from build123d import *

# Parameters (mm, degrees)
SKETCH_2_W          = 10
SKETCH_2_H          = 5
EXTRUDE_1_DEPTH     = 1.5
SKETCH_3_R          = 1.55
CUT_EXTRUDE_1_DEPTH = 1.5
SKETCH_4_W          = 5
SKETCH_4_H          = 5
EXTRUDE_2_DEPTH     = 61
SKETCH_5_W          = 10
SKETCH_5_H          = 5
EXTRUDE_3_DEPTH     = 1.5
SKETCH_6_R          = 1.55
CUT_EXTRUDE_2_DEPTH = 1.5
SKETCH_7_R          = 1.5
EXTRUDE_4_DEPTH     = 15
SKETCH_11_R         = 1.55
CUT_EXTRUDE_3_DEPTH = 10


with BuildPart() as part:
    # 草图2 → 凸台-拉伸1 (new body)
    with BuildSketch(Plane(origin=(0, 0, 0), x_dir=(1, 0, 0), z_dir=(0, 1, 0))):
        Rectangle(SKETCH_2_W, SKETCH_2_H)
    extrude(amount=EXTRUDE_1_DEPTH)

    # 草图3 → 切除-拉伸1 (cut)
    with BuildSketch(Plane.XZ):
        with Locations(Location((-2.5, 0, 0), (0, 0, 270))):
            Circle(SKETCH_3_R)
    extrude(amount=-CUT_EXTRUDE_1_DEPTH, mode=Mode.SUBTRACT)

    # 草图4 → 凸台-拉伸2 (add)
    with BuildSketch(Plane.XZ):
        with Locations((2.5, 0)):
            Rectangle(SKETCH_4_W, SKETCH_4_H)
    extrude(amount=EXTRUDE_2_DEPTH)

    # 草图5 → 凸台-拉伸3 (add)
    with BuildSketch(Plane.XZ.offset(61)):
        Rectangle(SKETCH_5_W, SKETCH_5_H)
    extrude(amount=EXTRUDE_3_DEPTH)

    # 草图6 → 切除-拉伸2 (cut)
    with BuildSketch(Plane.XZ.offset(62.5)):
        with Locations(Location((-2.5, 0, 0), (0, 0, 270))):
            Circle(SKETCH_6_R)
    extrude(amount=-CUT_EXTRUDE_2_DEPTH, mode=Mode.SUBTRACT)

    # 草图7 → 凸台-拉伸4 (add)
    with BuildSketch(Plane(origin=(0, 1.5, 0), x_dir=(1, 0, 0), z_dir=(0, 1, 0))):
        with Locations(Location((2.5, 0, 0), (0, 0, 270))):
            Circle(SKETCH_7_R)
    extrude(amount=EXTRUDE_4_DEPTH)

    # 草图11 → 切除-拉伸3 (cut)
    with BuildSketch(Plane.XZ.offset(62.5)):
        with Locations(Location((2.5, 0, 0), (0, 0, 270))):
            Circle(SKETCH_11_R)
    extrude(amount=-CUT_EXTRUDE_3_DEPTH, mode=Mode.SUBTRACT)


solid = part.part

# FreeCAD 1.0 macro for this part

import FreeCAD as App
import Part
import Sketcher

V = App.Vector
Q = App.Units.Quantity

doc = App.newDocument("Part")
body = doc.addObject("PartDesign::Body", "Body")

# Sketch on XZ plane
sketch1 = body.newObject("Sketcher::SketchObject", "Sketch")
sketch1.AttachmentSupport = (doc.getObject("XZ_Plane"), [""])
sketch1.MapMode = "FlatFace"
sketch1.addGeometry(Part.LineSegment(V(-5, -2, 0), V(-5, 2, 0)), False)
sketch1.addGeometry(Part.LineSegment(V(-5, 2, 0), V(5, 2, 0)), False)
sketch1.addGeometry(Part.LineSegment(V(5, 2, 0), V(5, -2, 0)), False)
sketch1.addGeometry(Part.LineSegment(V(5, -2, 0), V(-5, -2, 0)), False)
sketch1.addConstraint(Sketcher.Constraint("Coincident", 0, 2, 1, 1))
sketch1.addConstraint(Sketcher.Constraint("Coincident", 1, 2, 2, 1))
sketch1.addConstraint(Sketcher.Constraint("Coincident", 2, 2, 3, 1))
sketch1.addConstraint(Sketcher.Constraint("Coincident", 3, 2, 0, 1))
sketch1.addConstraint(Sketcher.Constraint("Vertical", 0))
sketch1.addConstraint(Sketcher.Constraint("Horizontal", 1))
sketch1.addConstraint(Sketcher.Constraint("Vertical", 2))
sketch1.addConstraint(Sketcher.Constraint("Horizontal", 3))
sketch1.addConstraint(Sketcher.Constraint("Symmetric", 0, 2, 2, 2, -1, 1))
sketch1.addConstraint(Sketcher.Constraint("DistanceX", 1, 1, 1, 2, Q("10 mm")))
sketch1.addConstraint(Sketcher.Constraint("DistanceY", 0, 1, 0, 2, Q("5 mm")))
pad1 = body.newObject("PartDesign::Pad", "Pad")
pad1.Profile = sketch1
pad1.Length = 1.5
pad1.Reversed = True

# Sketch on XZ plane
sketch2 = body.newObject("Sketcher::SketchObject", "Sketch001")
sketch2.AttachmentSupport = (doc.getObject("XZ_Plane"), [""])
sketch2.MapMode = "FlatFace"
sketch2.addGeometry(Part.Circle(V(-2.5, 0, 0), V(0, 0, 1), 1.6), False)
sketch2.addConstraint(Sketcher.Constraint("PointOnObject", 0, 3, -1))
sketch2.addConstraint(Sketcher.Constraint("Diameter", 0, Q("3.1 mm")))
sketch2.addConstraint(Sketcher.Constraint("DistanceX", 0, 3, -1, 1, Q("2.5 mm")))
pocket1 = body.newObject("PartDesign::Pocket", "Pocket")
pocket1.Profile = sketch2
pocket1.Length = 1.5

# Sketch on XZ plane
sketch3 = body.newObject("Sketcher::SketchObject", "Sketch002")
sketch3.AttachmentSupport = (doc.getObject("XZ_Plane"), [""])
sketch3.MapMode = "FlatFace"
sketch3.addGeometry(Part.LineSegment(V(0, 2, 0), V(0, -2, 0)), False)
sketch3.addGeometry(Part.LineSegment(V(0, -2, 0), V(5, -2, 0)), False)
sketch3.addGeometry(Part.LineSegment(V(5, -2, 0), V(5, 2, 0)), False)
sketch3.addGeometry(Part.LineSegment(V(5, 2, 0), V(0, 2, 0)), False)
sketch3.addConstraint(Sketcher.Constraint("Coincident", 0, 2, 1, 1))
sketch3.addConstraint(Sketcher.Constraint("Coincident", 1, 2, 2, 1))
sketch3.addConstraint(Sketcher.Constraint("Coincident", 2, 2, 3, 1))
sketch3.addConstraint(Sketcher.Constraint("Coincident", 3, 2, 0, 1))
sketch3.addConstraint(Sketcher.Constraint("Vertical", 0))
sketch3.addConstraint(Sketcher.Constraint("Horizontal", 1))
sketch3.addConstraint(Sketcher.Constraint("Vertical", 2))
sketch3.addConstraint(Sketcher.Constraint("Horizontal", 3))
sketch3.addConstraint(Sketcher.Constraint("Symmetric", 0, 2, 3, 2, -1, 1))
sketch3.addConstraint(Sketcher.Constraint("Equal", 3, 0))
sketch3.addConstraint(Sketcher.Constraint("DistanceX", 1, 1, 1, 2, Q("5 mm")))
pad2 = body.newObject("PartDesign::Pad", "Pad001")
pad2.Profile = sketch3
pad2.Length = 61

# Sketch on XZ plane
sketch4 = body.newObject("Sketcher::SketchObject", "Sketch003")
sketch4.AttachmentSupport = (doc.getObject("XZ_Plane"), [""])
sketch4.MapMode = "FlatFace"
sketch4.AttachmentOffset = App.Placement(V(0, 0, 61), App.Rotation())
sketch4.addGeometry(Part.LineSegment(V(-5, 2, 0), V(-5, -2, 0)), False)
sketch4.addGeometry(Part.LineSegment(V(-5, -2, 0), V(5, -2, 0)), False)
sketch4.addGeometry(Part.LineSegment(V(5, -2, 0), V(5, 2, 0)), False)
sketch4.addGeometry(Part.LineSegment(V(5, 2, 0), V(-5, 2, 0)), False)
sketch4.addConstraint(Sketcher.Constraint("Coincident", 0, 2, 1, 1))
sketch4.addConstraint(Sketcher.Constraint("Coincident", 1, 2, 2, 1))
sketch4.addConstraint(Sketcher.Constraint("Coincident", 2, 2, 3, 1))
sketch4.addConstraint(Sketcher.Constraint("Coincident", 3, 2, 0, 1))
sketch4.addConstraint(Sketcher.Constraint("Vertical", 0))
sketch4.addConstraint(Sketcher.Constraint("Horizontal", 1))
sketch4.addConstraint(Sketcher.Constraint("Vertical", 2))
sketch4.addConstraint(Sketcher.Constraint("Horizontal", 3))
sketch4.addConstraint(Sketcher.Constraint("Symmetric", 0, 2, 2, 2, -1, 1))
sketch4.addConstraint(Sketcher.Constraint("DistanceX", 1, 1, 1, 2, Q("10 mm")))
sketch4.addConstraint(Sketcher.Constraint("DistanceY", 0, 2, 0, 1, Q("5 mm")))
pad3 = body.newObject("PartDesign::Pad", "Pad002")
pad3.Profile = sketch4
pad3.Length = 1.5

# Sketch on XZ plane
sketch5 = body.newObject("Sketcher::SketchObject", "Sketch004")
sketch5.AttachmentSupport = (doc.getObject("XZ_Plane"), [""])
sketch5.MapMode = "FlatFace"
sketch5.AttachmentOffset = App.Placement(V(0, 0, 62.5), App.Rotation())
sketch5.addGeometry(Part.Circle(V(-2.5, 0, 0), V(0, 0, 1), 1.6), False)
sketch5.addConstraint(Sketcher.Constraint("PointOnObject", 0, 3, -1))
sketch5.addConstraint(Sketcher.Constraint("Diameter", 0, Q("3.1 mm")))
sketch5.addConstraint(Sketcher.Constraint("DistanceX", 0, 3, -1, 1, Q("2.5 mm")))
pocket2 = body.newObject("PartDesign::Pocket", "Pocket001")
pocket2.Profile = sketch5
pocket2.Length = 1.5

# Sketch on XZ plane
sketch6 = body.newObject("Sketcher::SketchObject", "Sketch005")
sketch6.AttachmentSupport = (doc.getObject("XZ_Plane"), [""])
sketch6.MapMode = "FlatFace"
sketch6.AttachmentOffset = App.Placement(V(0, 0, -1.5), App.Rotation())
sketch6.addGeometry(Part.Circle(V(2.5, 0, 0), V(0, 0, 1), 1.5), False)
sketch6.addConstraint(Sketcher.Constraint("PointOnObject", 0, 3, -1))
sketch6.addConstraint(Sketcher.Constraint("Diameter", 0, Q("3 mm")))
sketch6.addConstraint(Sketcher.Constraint("DistanceX", -1, 1, 0, 3, Q("2.5 mm")))
pad4 = body.newObject("PartDesign::Pad", "Pad003")
pad4.Profile = sketch6
pad4.Length = 15
pad4.Reversed = True

# Sketch on XZ plane
sketch7 = body.newObject("Sketcher::SketchObject", "Sketch006")
sketch7.AttachmentSupport = (doc.getObject("XZ_Plane"), [""])
sketch7.MapMode = "FlatFace"
sketch7.AttachmentOffset = App.Placement(V(0, 0, 62.5), App.Rotation())
sketch7.addGeometry(Part.Circle(V(2.5, 0, 0), V(0, 0, 1), 1.6), False)
sketch7.addConstraint(Sketcher.Constraint("PointOnObject", 0, 3, -1))
sketch7.addConstraint(Sketcher.Constraint("Diameter", 0, Q("3.1 mm")))
sketch7.addConstraint(Sketcher.Constraint("DistanceX", -1, 1, 0, 3, Q("2.5 mm")))
pocket3 = body.newObject("PartDesign::Pocket", "Pocket002")
pocket3.Profile = sketch7
pocket3.Length = 10

doc.recompute()
